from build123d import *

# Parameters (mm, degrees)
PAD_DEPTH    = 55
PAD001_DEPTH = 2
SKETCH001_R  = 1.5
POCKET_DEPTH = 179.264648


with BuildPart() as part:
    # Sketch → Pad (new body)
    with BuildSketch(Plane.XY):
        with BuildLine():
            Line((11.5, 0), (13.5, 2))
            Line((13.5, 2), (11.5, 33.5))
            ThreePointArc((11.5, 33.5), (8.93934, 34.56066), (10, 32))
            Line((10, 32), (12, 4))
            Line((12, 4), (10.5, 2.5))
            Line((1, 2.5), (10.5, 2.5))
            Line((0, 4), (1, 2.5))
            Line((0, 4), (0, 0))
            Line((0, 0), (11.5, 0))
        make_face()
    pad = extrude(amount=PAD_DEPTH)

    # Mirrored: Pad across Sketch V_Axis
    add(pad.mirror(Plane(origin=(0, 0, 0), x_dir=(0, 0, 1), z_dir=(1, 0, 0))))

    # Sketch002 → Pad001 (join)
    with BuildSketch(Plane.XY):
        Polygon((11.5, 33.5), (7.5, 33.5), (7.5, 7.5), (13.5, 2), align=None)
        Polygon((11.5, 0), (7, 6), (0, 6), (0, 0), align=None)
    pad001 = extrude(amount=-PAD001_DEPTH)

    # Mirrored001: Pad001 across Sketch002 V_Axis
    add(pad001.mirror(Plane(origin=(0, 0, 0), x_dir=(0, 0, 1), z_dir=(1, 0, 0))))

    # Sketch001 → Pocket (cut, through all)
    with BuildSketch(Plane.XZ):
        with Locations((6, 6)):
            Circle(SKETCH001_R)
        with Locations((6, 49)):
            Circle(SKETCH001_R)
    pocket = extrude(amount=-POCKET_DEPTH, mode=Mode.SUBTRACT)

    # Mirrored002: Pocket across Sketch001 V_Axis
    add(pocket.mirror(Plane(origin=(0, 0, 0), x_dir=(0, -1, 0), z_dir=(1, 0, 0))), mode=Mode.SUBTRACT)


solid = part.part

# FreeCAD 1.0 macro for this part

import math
import FreeCAD as App
import Part
import Sketcher
Q = App.Units.Quantity


def add_polygon(sketch, points):
    """Adds a closed chain of lines whose ends are joined by coincident constraints."""
    first, n = sketch.GeometryCount, len(points)
    for a, b in zip(points, points[1:] + points[:1]):
        sketch.addGeometry(Part.LineSegment(App.Vector(*a, 0), App.Vector(*b, 0)), False)
    for i in range(n):
        sketch.addConstraint(Sketcher.Constraint("Coincident", first + i, 2, first + (i + 1) % n, 1))

doc = App.newDocument("Part")
params = doc.addObject("Spreadsheet::Sheet", "Params")
for row, (alias, value) in enumerate([
    ("sketch1_radius", "1.5 mm"),
    ("sketch1_height", "4 mm"),
    ("sketch1_width", "9.5 mm"),
    ("sketch1_width2", "11.5 mm"),
    ("pad1_length", "55 mm"),
    ("sketch2_width", "4 mm"),
    ("sketch2_width2", "7 mm"),
    ("sketch2_height", "26 mm"),
    ("sketch2_height2", "6 mm"),
    ("sketch2_width3", "11.5 mm"),
    ("pad2_length", "2 mm"),
    ("sketch3_diameter", "3 mm"),
], start=1):
    params.set(f"A{row}", alias)
    params.set(f"B{row}", "=" + value)
    params.setAlias(f"B{row}", alias)

body = doc.addObject("PartDesign::Body", "Body")

# Sketch on XY plane
sketch1 = body.newObject("Sketcher::SketchObject", "Sketch")
sketch1.AttachmentSupport = (doc.getObject("XY_Plane"), [""])
sketch1.MapMode = "FlatFace"
sketch1.addGeometry([
    Part.LineSegment(App.Vector(11.5, 0, 0), App.Vector(13.5, 2, 0)),  # 0
    Part.LineSegment(App.Vector(13.5, 2, 0), App.Vector(11.5, 33.5, 0)),  # 1
    Part.ArcOfCircle(Part.Circle(App.Vector(10, 33.5, 0), App.Vector(0, 0, 1), 1.5), math.radians(0.000004), math.radians(269.999996)),  # 2
    Part.LineSegment(App.Vector(10, 32, 0), App.Vector(12, 4, 0)),  # 3
    Part.LineSegment(App.Vector(12, 4, 0), App.Vector(10.5, 2.5, 0)),  # 4
    Part.LineSegment(App.Vector(10.5, 2.5, 0), App.Vector(1, 2.5, 0)),  # 5
    Part.LineSegment(App.Vector(1, 2.5, 0), App.Vector(0, 4, 0)),  # 6
    Part.LineSegment(App.Vector(0, 4, 0), App.Vector(0, 0, 0)),  # 7
    Part.LineSegment(App.Vector(0, 0, 0), App.Vector(11.5, 0, 0)),  # 8
], False)
sketch1.addConstraint([
    Sketcher.Constraint("Coincident", 0, 2, 1, 1),
    Sketcher.Constraint("Coincident", 1, 2, 2, 1),
    Sketcher.Constraint("Coincident", 2, 2, 3, 1),
    Sketcher.Constraint("Coincident", 3, 2, 4, 1),
    Sketcher.Constraint("Coincident", 4, 2, 5, 1),
    Sketcher.Constraint("Coincident", 5, 2, 6, 1),
    Sketcher.Constraint("Coincident", 6, 2, 7, 1),
    Sketcher.Constraint("Coincident", 7, 2, 8, 1),
    Sketcher.Constraint("Coincident", 8, 2, 0, 1),
    Sketcher.Constraint("Horizontal", 5),
    Sketcher.Constraint("Vertical", 7),
    Sketcher.Constraint("Horizontal", 8),
    Sketcher.Constraint("Coincident", 7, 2, -1, 1),
    Sketcher.Constraint("Parallel", 0, 4),
    Sketcher.Constraint("Horizontal", 2, 3, 1, 2),
    Sketcher.Constraint("Horizontal", 3, 2, 6, 2),
    Sketcher.Constraint("Vertical", 1, 2, 8, 2),
    Sketcher.Constraint("Radius", 2, Q("1.5 mm")),
    Sketcher.Constraint("DistanceY", 7, 2, 7, 1, Q("4 mm")),
    Sketcher.Constraint("Angle", 0, Q("45 deg")),
    Sketcher.Constraint("DistanceX", 5, 2, 5, 1, Q("9.5 mm")),
    Sketcher.Constraint("DistanceX", 8, 1, 8, 2, Q("11.5 mm")),
    Sketcher.Constraint("DistanceY", -1, 1, 0, 2, Q("2 mm")),
    Sketcher.Constraint("DistanceX", -1, 1, 2, 2, Q("10 mm")),
    Sketcher.Constraint("DistanceY", -1, 1, 2, 2, Q("32 mm")),
    Sketcher.Constraint("DistanceX", -1, 1, 3, 2, Q("12 mm")),
    Sketcher.Constraint("DistanceX", -1, 1, 5, 2, Q("1 mm")),
])
sketch1.setExpression("Constraints[17]", "Params.sketch1_radius")
sketch1.setExpression("Constraints[18]", "Params.sketch1_height")
sketch1.setExpression("Constraints[20]", "Params.sketch1_width")
sketch1.setExpression("Constraints[21]", "Params.sketch1_width2")
pad1 = body.newObject("PartDesign::Pad", "Pad")
pad1.Profile = sketch1
pad1.setExpression("Length", "Params.pad1_length")
doc.recompute()

mirrored = body.newObject("PartDesign::Mirrored", "Mirrored")
mirrored.Originals = [pad1]
mirrored.MirrorPlane = (doc.getObject("YZ_Plane"), [""])
body.Tip = mirrored

# Sketch on XY plane
sketch2 = body.newObject("Sketcher::SketchObject", "Sketch001")
sketch2.AttachmentSupport = (doc.getObject("XY_Plane"), [""])
sketch2.MapMode = "FlatFace"
add_polygon(sketch2, [(11.5, 33.5), (7.5, 33.5), (7.5, 7.5), (13.5, 2)])  # lines 0-3
add_polygon(sketch2, [(11.5, 0), (7, 6), (0, 6), (0, 0)])  # lines 4-7
sketch2.addConstraint([
    Sketcher.Constraint("Horizontal", 0),
    Sketcher.Constraint("Vertical", 1),
    Sketcher.Constraint("Horizontal", 5),
    Sketcher.Constraint("Vertical", 6),
    Sketcher.Constraint("Horizontal", 7),
    Sketcher.Constraint("Coincident", 6, 2, -1, 1),
    Sketcher.Constraint("Vertical", 3, 2, 7, 2),
    Sketcher.Constraint("DistanceX", 0, 2, 0, 1, Q("4 mm")),
    Sketcher.Constraint("DistanceX", 5, 2, 5, 1, Q("7 mm")),
    Sketcher.Constraint("DistanceY", 1, 2, 1, 1, Q("26 mm")),
    Sketcher.Constraint("DistanceY", 6, 2, 6, 1, Q("6 mm")),
    Sketcher.Constraint("DistanceX", 7, 1, 7, 2, Q("11.5 mm")),
    Sketcher.Constraint("DistanceY", -1, 1, 2, 2, Q("2 mm")),
    Sketcher.Constraint("DistanceX", 1, 2, 2, 2, Q("6 mm")),
    Sketcher.Constraint("DistanceY", -1, 1, 0, 2, Q("33.5 mm")),
])
sketch2.setExpression("Constraints[15]", "Params.sketch2_width")
sketch2.setExpression("Constraints[16]", "Params.sketch2_width2")
sketch2.setExpression("Constraints[17]", "Params.sketch2_height")
sketch2.setExpression("Constraints[18]", "Params.sketch2_height2")
sketch2.setExpression("Constraints[19]", "Params.sketch2_width3")
pad2 = body.newObject("PartDesign::Pad", "Pad001")
pad2.Profile = sketch2
pad2.setExpression("Length", "Params.pad2_length")
pad2.Reversed = True
doc.recompute()

mirrored2 = body.newObject("PartDesign::Mirrored", "Mirrored001")
mirrored2.Originals = [pad2]
mirrored2.MirrorPlane = (doc.getObject("YZ_Plane"), [""])
body.Tip = mirrored2

# Sketch on XZ plane
sketch3 = body.newObject("Sketcher::SketchObject", "Sketch002")
sketch3.AttachmentSupport = (doc.getObject("XZ_Plane"), [""])
sketch3.MapMode = "FlatFace"
sketch3.addGeometry([
    Part.Circle(App.Vector(6, 6, 0), App.Vector(0, 0, 1), 1.5),
    Part.Circle(App.Vector(6, 49, 0), App.Vector(0, 0, 1), 1.5),
], False)
sketch3.addConstraint([
    Sketcher.Constraint("Equal", 0, 1),
    Sketcher.Constraint("Vertical", 0, 3, 1, 3),
    Sketcher.Constraint("Diameter", 0, Q("3 mm")),
    Sketcher.Constraint("DistanceX", -1, 1, 0, 3, Q("6 mm")),
    Sketcher.Constraint("DistanceY", -1, 1, 0, 3, Q("6 mm")),
    Sketcher.Constraint("DistanceY", -1, 1, 1, 3, Q("49 mm")),
])
sketch3.setExpression("Constraints[2]", "Params.sketch3_diameter")
pocket1 = body.newObject("PartDesign::Pocket", "Pocket")
pocket1.Profile = sketch3
pocket1.Type = "ThroughAll"
doc.recompute()

mirrored3 = body.newObject("PartDesign::Mirrored", "Mirrored002")
mirrored3.Originals = [pocket1]
mirrored3.MirrorPlane = (doc.getObject("YZ_Plane"), [""])
body.Tip = mirrored3

doc.recompute()
